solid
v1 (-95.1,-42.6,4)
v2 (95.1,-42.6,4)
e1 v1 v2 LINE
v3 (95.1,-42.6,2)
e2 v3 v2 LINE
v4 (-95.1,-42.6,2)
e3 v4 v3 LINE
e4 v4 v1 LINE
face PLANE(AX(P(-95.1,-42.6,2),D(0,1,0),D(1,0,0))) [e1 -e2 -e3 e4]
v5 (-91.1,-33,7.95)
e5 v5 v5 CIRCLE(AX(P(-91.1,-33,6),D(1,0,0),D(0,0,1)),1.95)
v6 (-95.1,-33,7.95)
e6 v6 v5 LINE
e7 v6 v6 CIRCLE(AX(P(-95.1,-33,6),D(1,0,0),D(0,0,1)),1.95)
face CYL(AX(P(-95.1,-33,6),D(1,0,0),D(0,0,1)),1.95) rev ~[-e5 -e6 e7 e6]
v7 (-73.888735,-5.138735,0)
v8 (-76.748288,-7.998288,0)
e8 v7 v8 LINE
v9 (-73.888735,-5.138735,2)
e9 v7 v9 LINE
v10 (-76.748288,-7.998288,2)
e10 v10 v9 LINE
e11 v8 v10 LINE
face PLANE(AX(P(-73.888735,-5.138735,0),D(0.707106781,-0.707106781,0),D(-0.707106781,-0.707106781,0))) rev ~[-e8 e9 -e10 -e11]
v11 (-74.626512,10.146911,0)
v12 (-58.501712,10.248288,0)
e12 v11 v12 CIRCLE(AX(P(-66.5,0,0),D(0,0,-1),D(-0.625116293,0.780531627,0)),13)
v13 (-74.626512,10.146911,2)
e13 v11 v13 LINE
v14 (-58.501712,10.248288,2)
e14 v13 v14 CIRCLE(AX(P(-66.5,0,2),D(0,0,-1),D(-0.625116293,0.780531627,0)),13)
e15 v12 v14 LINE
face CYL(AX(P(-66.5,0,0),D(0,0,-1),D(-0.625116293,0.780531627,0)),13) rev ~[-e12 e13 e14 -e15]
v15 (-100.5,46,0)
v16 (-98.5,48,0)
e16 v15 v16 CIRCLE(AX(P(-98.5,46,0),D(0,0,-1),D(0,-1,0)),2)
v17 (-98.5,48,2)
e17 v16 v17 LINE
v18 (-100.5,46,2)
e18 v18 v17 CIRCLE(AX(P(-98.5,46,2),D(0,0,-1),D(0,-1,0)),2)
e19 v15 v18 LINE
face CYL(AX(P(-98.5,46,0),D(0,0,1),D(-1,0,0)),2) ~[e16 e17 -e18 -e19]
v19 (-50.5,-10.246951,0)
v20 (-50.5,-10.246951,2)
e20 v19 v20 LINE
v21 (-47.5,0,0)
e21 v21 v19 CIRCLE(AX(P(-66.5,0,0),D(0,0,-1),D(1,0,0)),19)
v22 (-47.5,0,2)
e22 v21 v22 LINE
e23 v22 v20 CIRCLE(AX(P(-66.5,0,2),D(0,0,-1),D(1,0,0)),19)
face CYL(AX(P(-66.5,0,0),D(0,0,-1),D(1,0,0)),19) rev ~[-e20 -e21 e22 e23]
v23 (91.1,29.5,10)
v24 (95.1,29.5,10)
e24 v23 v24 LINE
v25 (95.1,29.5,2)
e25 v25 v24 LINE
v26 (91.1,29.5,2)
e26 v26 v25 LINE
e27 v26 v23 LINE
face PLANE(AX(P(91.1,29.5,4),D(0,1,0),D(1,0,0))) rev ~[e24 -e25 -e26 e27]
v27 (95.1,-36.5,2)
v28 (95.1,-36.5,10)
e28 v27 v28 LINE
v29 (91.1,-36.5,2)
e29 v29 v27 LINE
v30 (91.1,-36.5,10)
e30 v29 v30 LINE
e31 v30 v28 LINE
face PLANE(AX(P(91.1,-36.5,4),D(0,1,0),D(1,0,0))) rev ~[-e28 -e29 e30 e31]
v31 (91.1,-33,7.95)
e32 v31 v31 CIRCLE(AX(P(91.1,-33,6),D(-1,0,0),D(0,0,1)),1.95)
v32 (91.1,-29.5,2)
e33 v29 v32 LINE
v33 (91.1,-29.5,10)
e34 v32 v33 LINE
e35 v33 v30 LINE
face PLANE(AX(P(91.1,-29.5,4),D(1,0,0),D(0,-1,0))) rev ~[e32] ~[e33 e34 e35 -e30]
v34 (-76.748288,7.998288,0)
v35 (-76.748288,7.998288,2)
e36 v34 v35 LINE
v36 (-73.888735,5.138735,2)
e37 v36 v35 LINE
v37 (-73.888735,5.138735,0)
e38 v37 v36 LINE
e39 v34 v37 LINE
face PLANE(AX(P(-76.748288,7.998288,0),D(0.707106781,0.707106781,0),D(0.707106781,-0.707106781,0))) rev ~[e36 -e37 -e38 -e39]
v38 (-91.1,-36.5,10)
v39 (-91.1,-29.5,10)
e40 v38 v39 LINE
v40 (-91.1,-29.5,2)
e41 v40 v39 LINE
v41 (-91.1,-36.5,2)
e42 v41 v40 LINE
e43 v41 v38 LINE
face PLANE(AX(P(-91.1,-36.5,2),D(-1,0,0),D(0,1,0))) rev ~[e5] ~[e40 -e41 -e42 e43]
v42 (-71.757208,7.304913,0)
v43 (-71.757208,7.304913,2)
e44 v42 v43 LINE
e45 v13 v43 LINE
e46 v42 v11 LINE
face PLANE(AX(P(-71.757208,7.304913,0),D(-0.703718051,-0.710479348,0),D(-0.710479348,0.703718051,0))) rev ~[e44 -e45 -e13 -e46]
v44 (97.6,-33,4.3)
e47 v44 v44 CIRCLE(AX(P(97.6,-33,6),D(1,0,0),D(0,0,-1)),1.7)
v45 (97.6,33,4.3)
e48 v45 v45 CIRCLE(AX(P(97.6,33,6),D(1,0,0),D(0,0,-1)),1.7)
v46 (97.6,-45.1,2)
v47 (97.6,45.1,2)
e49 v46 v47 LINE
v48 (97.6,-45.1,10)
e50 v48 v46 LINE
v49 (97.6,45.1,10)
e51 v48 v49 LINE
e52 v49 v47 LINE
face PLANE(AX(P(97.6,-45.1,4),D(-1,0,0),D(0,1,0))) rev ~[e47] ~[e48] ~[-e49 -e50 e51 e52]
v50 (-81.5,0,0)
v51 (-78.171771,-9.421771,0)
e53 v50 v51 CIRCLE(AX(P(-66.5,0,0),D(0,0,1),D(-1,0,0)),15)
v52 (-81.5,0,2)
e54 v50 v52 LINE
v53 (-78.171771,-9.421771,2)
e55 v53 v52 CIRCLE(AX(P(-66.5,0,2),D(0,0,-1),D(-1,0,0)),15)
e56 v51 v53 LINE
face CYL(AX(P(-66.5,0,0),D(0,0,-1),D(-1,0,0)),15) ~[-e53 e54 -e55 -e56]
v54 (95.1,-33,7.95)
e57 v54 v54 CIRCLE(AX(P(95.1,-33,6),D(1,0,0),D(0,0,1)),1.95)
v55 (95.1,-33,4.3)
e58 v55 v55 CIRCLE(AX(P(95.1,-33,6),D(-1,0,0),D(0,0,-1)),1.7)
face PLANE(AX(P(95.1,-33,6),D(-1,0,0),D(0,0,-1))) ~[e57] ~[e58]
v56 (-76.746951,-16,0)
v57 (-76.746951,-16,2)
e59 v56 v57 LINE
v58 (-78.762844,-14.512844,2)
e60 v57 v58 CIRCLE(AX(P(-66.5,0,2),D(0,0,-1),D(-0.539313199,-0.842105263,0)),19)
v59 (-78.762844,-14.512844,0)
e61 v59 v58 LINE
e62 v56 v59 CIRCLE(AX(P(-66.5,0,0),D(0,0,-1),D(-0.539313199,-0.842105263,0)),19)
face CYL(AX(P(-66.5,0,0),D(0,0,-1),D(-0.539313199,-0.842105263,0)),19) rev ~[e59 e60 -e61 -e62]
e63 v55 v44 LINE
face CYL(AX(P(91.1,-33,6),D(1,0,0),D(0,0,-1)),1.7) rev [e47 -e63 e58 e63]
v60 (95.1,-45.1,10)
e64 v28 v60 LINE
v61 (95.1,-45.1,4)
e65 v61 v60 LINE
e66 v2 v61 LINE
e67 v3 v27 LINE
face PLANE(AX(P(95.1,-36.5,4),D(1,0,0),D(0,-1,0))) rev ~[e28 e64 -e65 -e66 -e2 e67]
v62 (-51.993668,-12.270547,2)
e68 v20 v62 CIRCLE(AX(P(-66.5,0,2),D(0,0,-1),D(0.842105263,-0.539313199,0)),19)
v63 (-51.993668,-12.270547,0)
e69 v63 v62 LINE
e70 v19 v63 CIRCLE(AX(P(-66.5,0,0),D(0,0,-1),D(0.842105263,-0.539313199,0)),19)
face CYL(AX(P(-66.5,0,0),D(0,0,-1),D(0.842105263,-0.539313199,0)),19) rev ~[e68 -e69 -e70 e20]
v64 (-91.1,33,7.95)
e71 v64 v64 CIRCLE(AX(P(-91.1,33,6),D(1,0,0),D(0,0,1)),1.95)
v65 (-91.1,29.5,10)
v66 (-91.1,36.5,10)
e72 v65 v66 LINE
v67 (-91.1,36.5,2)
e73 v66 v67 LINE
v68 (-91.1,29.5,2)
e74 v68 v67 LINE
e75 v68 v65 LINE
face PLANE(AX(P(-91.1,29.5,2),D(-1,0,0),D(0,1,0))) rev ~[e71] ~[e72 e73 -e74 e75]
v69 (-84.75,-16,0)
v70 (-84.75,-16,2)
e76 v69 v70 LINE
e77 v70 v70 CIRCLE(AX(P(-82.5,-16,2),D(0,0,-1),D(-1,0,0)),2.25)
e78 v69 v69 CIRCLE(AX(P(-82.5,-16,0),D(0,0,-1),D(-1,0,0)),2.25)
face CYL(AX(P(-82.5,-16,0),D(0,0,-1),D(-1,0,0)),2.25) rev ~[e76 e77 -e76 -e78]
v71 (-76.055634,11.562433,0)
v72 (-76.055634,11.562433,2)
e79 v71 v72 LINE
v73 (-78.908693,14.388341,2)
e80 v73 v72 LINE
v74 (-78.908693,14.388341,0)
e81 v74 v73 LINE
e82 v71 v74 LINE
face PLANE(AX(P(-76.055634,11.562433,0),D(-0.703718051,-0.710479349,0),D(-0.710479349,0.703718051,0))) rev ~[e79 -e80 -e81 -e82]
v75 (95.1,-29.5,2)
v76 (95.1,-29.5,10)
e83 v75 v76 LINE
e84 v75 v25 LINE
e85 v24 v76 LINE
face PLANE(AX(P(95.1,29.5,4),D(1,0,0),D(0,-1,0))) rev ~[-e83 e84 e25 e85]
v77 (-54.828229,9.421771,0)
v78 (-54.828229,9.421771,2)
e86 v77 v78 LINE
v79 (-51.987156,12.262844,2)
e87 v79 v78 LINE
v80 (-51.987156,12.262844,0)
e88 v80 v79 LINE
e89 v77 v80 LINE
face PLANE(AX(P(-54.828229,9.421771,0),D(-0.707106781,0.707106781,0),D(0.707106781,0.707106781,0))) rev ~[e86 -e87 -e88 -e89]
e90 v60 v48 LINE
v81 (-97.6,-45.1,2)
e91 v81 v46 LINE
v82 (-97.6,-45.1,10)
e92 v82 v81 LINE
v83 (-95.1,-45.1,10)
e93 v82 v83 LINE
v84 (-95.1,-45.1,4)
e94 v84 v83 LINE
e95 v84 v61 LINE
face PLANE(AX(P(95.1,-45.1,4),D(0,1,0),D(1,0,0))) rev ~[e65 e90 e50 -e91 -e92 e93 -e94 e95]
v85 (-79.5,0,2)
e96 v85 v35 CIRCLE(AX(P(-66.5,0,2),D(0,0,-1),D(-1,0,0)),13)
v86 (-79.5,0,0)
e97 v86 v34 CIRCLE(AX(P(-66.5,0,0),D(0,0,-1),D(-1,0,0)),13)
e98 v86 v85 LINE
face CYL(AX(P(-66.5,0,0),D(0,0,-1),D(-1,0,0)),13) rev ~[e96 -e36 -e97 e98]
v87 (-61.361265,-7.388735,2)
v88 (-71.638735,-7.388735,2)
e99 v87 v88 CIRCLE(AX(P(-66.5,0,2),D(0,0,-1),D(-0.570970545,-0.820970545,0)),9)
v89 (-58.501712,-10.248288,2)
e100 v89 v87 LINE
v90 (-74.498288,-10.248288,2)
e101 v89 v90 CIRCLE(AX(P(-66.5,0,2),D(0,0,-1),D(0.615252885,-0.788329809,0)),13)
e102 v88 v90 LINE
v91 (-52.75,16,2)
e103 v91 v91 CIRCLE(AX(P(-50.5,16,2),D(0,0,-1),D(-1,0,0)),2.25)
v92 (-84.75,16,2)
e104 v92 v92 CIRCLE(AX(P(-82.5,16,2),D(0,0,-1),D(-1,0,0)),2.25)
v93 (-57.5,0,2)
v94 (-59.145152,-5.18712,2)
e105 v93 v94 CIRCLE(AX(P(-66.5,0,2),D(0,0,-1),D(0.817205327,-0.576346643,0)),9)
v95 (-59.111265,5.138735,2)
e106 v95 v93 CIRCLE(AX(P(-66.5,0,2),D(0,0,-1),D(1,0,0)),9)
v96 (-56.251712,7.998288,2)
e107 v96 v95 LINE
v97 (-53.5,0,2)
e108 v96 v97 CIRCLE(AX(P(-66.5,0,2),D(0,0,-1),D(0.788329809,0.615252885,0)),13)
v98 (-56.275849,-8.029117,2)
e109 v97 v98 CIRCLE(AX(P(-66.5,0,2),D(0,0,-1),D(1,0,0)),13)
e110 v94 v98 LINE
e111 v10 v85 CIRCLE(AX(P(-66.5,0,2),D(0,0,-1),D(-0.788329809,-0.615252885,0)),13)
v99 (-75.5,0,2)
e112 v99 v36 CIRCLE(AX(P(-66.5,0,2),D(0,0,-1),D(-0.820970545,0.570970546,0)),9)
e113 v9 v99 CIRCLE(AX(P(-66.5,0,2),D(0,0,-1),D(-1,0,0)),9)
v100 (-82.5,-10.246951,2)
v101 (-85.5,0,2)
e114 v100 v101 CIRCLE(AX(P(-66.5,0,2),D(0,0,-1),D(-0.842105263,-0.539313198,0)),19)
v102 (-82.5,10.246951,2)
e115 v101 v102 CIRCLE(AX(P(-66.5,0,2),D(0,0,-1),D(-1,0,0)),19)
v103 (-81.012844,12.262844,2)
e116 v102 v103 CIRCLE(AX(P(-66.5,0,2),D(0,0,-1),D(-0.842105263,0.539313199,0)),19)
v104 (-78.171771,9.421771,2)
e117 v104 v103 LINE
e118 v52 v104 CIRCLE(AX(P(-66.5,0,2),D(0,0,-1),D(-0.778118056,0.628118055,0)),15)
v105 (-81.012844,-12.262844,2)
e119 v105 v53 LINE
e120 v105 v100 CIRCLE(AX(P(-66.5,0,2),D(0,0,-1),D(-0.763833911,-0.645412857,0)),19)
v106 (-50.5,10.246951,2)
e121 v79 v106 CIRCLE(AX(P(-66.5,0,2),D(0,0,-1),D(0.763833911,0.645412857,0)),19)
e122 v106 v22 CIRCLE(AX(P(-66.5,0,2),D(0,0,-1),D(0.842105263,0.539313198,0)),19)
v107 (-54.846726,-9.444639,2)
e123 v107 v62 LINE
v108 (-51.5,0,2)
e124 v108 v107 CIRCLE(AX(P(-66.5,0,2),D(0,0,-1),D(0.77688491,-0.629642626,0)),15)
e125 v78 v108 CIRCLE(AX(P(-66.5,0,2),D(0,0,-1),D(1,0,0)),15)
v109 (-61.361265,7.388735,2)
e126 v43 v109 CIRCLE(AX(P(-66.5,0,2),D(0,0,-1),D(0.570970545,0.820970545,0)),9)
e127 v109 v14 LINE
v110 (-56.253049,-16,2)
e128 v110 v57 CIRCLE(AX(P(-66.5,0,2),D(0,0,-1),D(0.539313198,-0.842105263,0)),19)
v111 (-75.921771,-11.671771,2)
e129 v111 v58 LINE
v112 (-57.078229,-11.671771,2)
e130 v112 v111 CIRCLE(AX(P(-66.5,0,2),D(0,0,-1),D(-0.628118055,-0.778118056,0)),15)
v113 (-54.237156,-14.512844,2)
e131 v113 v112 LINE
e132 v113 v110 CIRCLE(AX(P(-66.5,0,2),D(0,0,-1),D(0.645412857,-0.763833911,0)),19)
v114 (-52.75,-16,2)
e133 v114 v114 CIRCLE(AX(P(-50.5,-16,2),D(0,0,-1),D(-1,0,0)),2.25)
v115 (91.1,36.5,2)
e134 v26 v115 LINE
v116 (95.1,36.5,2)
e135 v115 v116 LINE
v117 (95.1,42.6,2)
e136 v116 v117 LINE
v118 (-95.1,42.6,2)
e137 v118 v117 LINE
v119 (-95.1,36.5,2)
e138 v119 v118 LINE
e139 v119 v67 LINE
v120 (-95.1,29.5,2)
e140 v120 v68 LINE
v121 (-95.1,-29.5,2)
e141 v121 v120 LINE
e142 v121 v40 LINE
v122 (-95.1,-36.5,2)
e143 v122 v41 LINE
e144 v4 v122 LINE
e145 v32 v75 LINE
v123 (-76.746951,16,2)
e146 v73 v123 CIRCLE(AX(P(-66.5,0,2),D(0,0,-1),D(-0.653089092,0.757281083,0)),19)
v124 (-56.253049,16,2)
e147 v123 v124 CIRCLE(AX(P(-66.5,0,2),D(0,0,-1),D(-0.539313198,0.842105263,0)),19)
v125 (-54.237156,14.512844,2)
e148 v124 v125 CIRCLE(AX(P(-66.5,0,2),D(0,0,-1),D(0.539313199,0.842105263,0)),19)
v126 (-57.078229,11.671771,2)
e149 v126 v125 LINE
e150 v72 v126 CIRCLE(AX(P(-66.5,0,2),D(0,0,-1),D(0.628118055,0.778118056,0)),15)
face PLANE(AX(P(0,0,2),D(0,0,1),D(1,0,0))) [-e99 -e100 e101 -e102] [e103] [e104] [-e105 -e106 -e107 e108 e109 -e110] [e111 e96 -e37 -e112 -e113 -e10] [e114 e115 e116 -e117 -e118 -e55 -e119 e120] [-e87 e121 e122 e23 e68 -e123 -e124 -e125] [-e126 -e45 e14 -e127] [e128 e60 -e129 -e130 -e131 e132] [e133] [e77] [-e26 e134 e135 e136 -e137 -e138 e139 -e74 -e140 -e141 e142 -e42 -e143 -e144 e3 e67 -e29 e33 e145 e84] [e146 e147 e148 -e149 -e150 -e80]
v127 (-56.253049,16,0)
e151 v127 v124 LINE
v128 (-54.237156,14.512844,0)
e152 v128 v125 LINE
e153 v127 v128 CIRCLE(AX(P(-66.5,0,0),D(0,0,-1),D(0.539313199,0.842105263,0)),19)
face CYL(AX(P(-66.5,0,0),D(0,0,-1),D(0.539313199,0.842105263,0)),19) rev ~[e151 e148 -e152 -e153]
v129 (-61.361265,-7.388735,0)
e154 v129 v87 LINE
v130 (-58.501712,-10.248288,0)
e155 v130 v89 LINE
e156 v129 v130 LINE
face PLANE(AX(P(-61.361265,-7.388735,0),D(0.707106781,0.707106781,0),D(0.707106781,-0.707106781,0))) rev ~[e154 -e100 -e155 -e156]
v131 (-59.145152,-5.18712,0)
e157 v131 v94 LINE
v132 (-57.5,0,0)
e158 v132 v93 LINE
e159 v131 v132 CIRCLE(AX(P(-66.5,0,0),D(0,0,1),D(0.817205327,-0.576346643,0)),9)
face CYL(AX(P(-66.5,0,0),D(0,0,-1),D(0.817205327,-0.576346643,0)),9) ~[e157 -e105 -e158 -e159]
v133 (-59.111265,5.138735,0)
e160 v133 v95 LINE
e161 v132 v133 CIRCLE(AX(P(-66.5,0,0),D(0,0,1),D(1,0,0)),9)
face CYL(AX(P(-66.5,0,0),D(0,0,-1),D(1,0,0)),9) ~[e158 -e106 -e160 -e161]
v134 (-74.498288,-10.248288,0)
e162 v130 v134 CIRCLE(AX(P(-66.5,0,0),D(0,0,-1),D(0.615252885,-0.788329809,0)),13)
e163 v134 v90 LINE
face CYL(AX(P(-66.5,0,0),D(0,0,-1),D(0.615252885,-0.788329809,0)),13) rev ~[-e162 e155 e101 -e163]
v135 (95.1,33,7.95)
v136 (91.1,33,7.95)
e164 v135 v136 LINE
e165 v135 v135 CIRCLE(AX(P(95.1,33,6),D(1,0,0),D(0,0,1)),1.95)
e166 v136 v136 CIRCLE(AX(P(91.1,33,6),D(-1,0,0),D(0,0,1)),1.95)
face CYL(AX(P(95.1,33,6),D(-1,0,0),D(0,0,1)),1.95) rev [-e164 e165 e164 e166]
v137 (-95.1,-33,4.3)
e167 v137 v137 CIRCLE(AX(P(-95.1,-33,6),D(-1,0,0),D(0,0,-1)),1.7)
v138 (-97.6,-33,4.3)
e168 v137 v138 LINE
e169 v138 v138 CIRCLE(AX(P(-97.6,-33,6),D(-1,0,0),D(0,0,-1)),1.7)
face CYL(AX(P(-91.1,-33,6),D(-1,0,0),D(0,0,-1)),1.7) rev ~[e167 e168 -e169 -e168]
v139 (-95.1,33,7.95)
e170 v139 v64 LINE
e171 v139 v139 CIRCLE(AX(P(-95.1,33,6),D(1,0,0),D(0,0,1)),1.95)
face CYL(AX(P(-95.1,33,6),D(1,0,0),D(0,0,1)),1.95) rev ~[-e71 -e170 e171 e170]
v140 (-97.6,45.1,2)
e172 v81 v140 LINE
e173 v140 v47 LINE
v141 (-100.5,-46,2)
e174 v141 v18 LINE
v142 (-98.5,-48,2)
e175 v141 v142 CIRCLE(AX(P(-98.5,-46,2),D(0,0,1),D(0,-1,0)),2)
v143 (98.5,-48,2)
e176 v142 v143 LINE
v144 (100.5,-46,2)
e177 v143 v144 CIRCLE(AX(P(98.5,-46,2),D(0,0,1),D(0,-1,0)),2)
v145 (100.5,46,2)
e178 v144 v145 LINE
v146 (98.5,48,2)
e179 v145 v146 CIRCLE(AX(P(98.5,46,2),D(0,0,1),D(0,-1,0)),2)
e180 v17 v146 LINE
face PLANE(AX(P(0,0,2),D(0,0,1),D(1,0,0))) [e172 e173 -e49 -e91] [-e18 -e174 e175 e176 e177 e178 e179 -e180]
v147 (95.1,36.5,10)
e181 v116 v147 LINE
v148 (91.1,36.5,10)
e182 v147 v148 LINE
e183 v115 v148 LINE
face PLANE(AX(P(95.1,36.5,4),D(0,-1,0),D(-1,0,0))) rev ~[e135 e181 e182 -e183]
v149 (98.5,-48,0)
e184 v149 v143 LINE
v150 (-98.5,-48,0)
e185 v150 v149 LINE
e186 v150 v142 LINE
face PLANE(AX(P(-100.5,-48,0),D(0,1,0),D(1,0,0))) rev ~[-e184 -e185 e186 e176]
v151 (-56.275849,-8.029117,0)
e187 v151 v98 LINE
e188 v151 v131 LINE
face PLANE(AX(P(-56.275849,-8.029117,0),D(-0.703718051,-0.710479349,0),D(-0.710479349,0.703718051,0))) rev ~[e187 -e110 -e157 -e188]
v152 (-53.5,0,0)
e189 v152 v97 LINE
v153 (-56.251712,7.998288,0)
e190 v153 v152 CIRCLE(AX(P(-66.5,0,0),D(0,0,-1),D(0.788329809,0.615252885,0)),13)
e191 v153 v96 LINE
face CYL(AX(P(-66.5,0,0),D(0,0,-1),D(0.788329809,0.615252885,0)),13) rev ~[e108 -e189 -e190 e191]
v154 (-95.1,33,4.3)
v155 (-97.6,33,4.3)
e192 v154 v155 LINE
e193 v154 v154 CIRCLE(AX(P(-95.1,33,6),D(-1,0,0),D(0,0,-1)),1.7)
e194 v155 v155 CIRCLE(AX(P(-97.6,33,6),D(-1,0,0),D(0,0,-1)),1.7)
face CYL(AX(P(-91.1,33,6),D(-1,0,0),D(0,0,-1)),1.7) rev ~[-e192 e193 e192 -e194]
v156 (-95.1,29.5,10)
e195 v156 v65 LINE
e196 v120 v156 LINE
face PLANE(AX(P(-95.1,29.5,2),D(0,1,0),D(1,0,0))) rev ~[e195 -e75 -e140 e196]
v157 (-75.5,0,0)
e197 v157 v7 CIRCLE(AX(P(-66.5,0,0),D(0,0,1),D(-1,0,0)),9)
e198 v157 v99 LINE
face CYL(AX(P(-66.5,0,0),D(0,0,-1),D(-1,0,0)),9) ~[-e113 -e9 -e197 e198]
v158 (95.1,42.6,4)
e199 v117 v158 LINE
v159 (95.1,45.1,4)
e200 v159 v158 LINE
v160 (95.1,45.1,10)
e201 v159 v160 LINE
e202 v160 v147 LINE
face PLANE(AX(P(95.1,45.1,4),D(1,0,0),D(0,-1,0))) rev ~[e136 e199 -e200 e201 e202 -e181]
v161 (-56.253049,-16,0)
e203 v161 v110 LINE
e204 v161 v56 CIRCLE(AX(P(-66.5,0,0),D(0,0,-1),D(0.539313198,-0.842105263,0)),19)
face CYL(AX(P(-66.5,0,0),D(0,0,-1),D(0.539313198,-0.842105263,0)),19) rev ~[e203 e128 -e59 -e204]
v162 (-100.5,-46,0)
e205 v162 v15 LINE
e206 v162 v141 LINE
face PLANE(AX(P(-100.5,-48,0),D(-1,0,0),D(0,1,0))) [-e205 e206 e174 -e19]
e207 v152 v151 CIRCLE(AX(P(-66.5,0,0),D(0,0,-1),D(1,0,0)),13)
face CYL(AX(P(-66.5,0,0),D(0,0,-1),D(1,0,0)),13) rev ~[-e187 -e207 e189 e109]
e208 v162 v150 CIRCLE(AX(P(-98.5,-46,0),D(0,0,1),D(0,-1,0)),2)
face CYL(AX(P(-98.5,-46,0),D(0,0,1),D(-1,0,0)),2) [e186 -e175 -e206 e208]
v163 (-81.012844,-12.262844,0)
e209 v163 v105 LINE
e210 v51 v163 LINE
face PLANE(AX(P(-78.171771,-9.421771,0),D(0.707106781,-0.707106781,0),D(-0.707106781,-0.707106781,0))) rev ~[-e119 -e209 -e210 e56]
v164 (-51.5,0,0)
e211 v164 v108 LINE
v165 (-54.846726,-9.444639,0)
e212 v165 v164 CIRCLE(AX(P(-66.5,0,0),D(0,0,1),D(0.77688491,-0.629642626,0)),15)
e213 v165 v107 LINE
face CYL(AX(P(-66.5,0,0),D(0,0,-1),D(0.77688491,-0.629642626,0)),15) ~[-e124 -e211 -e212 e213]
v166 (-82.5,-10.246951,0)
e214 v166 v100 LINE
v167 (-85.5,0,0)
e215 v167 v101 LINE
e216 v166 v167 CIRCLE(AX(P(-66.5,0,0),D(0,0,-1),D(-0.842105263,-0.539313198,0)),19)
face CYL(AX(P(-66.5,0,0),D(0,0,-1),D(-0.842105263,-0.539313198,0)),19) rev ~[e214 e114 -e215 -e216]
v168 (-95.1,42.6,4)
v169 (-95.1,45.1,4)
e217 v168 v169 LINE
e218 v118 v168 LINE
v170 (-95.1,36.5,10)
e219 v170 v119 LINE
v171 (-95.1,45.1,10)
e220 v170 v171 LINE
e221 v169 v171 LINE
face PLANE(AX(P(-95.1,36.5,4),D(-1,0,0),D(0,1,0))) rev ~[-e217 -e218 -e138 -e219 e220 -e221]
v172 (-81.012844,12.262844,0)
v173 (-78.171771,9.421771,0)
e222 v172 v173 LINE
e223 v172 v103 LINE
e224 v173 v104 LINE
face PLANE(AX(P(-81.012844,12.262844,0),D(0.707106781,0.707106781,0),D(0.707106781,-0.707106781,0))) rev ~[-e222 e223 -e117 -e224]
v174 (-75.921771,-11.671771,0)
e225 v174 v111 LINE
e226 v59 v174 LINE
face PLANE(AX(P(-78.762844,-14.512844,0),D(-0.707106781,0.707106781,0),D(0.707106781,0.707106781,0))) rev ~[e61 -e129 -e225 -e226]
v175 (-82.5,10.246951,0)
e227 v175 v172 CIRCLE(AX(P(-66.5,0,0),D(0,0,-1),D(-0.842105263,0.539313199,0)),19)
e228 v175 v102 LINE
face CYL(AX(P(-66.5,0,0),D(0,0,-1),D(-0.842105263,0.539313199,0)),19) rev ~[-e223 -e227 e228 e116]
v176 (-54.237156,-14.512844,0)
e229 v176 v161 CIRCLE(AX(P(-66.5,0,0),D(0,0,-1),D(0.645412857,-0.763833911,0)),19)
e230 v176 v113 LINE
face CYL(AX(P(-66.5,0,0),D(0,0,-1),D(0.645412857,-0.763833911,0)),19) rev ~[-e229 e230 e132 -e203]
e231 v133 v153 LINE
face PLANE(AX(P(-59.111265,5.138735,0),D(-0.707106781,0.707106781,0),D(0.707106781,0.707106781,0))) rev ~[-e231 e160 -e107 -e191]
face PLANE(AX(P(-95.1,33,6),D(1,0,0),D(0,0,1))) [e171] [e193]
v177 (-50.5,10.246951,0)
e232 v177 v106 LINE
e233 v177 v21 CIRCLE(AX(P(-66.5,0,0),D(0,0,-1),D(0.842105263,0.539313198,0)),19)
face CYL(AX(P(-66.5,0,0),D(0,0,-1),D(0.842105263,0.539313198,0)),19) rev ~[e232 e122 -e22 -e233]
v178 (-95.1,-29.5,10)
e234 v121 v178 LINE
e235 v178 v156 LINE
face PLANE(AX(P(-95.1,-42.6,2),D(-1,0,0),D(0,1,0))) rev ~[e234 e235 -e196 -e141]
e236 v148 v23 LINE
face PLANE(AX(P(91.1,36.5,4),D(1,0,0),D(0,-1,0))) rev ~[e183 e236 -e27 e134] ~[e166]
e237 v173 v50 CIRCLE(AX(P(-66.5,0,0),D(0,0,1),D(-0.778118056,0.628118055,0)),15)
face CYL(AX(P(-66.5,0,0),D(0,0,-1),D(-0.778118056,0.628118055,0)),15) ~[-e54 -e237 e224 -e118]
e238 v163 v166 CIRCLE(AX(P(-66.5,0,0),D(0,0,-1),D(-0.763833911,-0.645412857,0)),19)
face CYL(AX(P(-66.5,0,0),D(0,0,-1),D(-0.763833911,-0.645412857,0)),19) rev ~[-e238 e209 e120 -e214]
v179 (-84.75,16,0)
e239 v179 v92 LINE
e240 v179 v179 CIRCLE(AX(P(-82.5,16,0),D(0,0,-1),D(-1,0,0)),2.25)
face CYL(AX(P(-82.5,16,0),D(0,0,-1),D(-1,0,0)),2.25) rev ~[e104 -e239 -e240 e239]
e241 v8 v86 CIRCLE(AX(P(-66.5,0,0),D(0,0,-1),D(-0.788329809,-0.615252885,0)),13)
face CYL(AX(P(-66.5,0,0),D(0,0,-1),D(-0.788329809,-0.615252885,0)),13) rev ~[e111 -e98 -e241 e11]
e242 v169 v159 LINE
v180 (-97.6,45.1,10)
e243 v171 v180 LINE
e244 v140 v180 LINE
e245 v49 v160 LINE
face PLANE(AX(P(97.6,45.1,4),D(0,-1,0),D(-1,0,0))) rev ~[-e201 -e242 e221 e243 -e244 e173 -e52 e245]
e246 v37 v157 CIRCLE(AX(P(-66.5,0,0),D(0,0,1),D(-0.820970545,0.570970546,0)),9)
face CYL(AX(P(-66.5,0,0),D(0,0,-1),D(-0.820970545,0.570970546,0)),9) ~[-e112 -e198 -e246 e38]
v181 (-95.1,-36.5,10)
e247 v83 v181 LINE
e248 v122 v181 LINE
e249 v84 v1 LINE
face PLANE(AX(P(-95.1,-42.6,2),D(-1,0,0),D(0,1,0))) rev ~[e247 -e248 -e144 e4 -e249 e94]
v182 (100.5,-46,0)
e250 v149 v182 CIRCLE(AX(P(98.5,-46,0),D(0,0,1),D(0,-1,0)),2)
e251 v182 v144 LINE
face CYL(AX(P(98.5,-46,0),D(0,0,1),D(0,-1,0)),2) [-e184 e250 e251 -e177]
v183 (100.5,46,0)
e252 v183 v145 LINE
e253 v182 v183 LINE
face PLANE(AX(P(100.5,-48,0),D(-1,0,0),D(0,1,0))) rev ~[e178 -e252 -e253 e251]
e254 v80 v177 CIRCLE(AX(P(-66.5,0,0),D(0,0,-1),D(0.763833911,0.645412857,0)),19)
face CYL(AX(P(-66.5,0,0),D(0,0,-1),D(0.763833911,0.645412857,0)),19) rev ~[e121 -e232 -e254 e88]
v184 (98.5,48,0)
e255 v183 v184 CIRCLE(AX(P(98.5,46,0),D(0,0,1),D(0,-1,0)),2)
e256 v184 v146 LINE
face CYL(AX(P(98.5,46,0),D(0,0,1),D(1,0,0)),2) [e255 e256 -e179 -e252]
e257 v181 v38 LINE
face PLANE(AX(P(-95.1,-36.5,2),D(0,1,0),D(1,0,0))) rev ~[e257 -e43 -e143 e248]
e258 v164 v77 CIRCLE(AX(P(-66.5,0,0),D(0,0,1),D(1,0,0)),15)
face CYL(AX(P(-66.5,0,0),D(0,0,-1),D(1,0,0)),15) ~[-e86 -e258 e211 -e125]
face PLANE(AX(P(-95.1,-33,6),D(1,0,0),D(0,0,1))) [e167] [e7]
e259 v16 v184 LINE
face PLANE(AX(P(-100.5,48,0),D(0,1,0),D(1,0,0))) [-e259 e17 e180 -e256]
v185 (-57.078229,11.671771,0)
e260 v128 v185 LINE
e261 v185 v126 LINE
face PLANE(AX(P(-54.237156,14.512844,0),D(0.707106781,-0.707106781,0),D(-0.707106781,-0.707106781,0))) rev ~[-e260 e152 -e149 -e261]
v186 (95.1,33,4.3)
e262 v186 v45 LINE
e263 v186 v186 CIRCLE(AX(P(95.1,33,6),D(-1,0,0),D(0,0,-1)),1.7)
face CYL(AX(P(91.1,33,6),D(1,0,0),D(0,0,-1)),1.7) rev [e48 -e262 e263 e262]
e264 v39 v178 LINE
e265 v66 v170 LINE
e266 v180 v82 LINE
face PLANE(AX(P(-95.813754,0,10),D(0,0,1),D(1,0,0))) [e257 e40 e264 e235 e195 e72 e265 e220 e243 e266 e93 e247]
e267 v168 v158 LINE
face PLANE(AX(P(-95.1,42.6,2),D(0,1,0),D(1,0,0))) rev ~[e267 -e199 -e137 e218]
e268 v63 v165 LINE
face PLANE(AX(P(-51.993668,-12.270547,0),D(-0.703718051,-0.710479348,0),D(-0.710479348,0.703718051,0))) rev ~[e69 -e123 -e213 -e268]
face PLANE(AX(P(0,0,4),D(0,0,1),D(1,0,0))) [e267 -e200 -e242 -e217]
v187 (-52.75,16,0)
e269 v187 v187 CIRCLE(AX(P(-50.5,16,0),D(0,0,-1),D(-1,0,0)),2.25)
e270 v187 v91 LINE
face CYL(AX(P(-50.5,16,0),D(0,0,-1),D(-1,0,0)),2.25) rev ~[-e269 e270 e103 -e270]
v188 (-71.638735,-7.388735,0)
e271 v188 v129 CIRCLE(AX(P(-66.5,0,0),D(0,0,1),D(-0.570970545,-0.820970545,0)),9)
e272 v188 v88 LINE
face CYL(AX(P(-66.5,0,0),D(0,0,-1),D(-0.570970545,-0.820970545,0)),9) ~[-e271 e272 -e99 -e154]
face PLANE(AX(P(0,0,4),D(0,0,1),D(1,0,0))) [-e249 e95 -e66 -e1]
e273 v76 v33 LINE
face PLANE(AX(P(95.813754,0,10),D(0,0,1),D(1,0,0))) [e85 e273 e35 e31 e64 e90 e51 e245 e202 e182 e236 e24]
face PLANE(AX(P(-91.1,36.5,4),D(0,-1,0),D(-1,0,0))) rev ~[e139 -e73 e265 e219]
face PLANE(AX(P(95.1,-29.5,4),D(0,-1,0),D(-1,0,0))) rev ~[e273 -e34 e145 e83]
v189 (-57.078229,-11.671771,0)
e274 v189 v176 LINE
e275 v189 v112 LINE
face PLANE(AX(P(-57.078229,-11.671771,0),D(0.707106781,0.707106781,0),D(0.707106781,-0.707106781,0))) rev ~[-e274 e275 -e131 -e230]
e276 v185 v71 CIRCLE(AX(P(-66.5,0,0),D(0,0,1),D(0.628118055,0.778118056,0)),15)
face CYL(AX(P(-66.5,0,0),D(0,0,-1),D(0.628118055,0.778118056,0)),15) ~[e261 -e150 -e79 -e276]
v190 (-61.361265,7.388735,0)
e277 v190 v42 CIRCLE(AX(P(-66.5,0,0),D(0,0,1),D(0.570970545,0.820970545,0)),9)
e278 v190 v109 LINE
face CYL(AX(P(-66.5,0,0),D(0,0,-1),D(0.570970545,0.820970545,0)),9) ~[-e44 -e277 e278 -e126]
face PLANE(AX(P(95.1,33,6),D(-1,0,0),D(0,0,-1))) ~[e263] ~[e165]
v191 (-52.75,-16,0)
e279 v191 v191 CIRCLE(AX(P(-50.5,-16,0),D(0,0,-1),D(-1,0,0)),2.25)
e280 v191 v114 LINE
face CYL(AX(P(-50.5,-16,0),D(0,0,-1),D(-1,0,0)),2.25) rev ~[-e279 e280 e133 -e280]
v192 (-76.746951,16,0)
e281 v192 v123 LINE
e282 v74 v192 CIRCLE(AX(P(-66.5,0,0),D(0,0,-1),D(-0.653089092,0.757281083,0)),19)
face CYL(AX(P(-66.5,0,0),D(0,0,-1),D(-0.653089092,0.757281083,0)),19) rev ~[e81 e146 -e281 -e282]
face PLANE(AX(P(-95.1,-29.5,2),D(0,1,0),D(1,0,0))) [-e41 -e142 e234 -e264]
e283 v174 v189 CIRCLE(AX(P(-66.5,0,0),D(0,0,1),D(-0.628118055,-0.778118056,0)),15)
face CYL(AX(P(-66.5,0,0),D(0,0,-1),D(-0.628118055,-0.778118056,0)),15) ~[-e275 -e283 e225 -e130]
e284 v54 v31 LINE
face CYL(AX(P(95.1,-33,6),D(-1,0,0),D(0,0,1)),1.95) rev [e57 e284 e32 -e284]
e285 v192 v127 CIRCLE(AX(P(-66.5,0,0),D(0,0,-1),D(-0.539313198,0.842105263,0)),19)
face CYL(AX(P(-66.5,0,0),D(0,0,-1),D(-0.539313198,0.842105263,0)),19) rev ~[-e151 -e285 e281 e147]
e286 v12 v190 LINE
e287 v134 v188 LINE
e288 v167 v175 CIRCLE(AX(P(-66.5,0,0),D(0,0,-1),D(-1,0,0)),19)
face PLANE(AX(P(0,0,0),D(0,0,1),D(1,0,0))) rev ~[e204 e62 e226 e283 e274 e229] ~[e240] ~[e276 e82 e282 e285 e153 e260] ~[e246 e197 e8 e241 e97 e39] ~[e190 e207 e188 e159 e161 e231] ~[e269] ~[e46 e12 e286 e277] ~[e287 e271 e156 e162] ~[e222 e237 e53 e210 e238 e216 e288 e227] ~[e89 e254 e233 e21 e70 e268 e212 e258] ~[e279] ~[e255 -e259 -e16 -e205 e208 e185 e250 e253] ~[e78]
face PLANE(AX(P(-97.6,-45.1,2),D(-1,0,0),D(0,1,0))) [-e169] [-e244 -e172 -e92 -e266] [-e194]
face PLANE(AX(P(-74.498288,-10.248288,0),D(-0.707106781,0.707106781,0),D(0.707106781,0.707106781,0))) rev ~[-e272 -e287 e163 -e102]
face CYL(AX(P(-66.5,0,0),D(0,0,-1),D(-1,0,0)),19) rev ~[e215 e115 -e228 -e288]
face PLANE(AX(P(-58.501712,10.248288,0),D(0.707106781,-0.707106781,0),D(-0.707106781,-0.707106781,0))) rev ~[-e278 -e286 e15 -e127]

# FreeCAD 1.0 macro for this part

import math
import FreeCAD as App
import Part
import Sketcher
from FreeCAD import Vector


def edges_at(feature, points):
    """Names of the edges that pass closest to the given points."""
    edges = feature.Shape.Edges
    near = lambda p: min(range(len(edges)), key=lambda i: edges[i].distToShape(Part.Vertex(*p))[0])
    return sorted({f"Edge{near(p) + 1}" for p in points})


def add_polygon(sketch, points):
    """Adds a closed chain of lines whose ends are joined by coincident constraints."""
    first, n = sketch.GeometryCount, len(points)
    for a, b in zip(points, points[1:] + points[:1]):
        sketch.addGeometry(Part.LineSegment(App.Vector(*a, 0), App.Vector(*b, 0)), False)
    for i in range(n):
        sketch.addConstraint(Sketcher.Constraint("Coincident", first + i, 2, first + (i + 1) % n, 1))

doc = App.newDocument("Part")
body = doc.addObject("PartDesign::Body", "Body")

sketch1 = body.newObject("Sketcher::SketchObject", "Sketch")
sketch1.AttachmentSupport = (doc.getObject("XY_Plane"), [""])
sketch1.MapMode = "FlatFace"
add_polygon(sketch1, [(-100, 48), (-100, -48), (100, -48), (100, 48)])
sketch1.addConstraint([
    Sketcher.Constraint("Vertical", 0),
    Sketcher.Constraint("Horizontal", 1),
    Sketcher.Constraint("Vertical", 2),
    Sketcher.Constraint("Horizontal", 3),
    Sketcher.Constraint("Symmetric", 0, 2, 2, 2, -1, 1),
    Sketcher.Constraint("DistanceX", 1, 1, 1, 2, 201.0),
    Sketcher.Constraint("DistanceY", 0, 2, 0, 1, 96.0),
])
pad1 = body.newObject("PartDesign::Pad", "Pad")
pad1.Profile = sketch1
pad1.Length = 2
doc.recompute()

fillet = body.newObject("PartDesign::Fillet", "Fillet")
fillet.Base = (pad1, edges_at(pad1, [
    (100.5, -48, 1),
    (-100.5, -48, 1),
    (-100.5, 48, 1),
    (100.5, 48, 1),
]))
fillet.Radius = 2

sketch2 = body.newObject("Sketcher::SketchObject", "Sketch001")
sketch2.AttachmentSupport = (doc.getObject("XY_Plane"), [""])
sketch2.MapMode = "FlatFace"
sketch2.AttachmentOffset = App.Placement(Vector(0, 0, 2), App.Rotation())
add_polygon(sketch2, [(-97.6, 45.1), (-97.6, -45.1), (97.6, -45.1), (97.6, 45.1)])
add_polygon(sketch2, [(95.1, -42.6), (-95.1, -42.6), (-95.1, -36.5), (-91.1, -36.5), (-91.1, -29.5), (-95.1, -29.5), (-95.1, 29.5), (-91.1, 29.5), (-91.1, 36.5), (-95.1, 36.5), (-95.1, 42.6), (95.1, 42.6), (95.1, 36.5), (91.1, 36.5), (91.1, 29.5), (95.1, 29.5), (95.1, -29.5), (91.1, -29.5), (91.1, -36.5), (95.1, -36.5)])
sketch2.addConstraint([
    Sketcher.Constraint("Vertical", 0),
    Sketcher.Constraint("Horizontal", 1),
    Sketcher.Constraint("Vertical", 2),
    Sketcher.Constraint("Horizontal", 3),
    Sketcher.Constraint("Horizontal", 4),
    Sketcher.Constraint("Vertical", 5),
    Sketcher.Constraint("Horizontal", 6),
    Sketcher.Constraint("Vertical", 7),
    Sketcher.Constraint("Horizontal", 8),
    Sketcher.Constraint("Vertical", 9),
    Sketcher.Constraint("Horizontal", 10),
    Sketcher.Constraint("Vertical", 11),
    Sketcher.Constraint("Horizontal", 12),
    Sketcher.Constraint("Vertical", 13),
    Sketcher.Constraint("Horizontal", 14),
    Sketcher.Constraint("Vertical", 15),
    Sketcher.Constraint("Horizontal", 16),
    Sketcher.Constraint("Vertical", 17),
    Sketcher.Constraint("Horizontal", 18),
    Sketcher.Constraint("Vertical", 19),
    Sketcher.Constraint("Horizontal", 20),
    Sketcher.Constraint("Vertical", 21),
    Sketcher.Constraint("Horizontal", 22),
    Sketcher.Constraint("Vertical", 23),
    Sketcher.Constraint("Symmetric", 0, 2, 2, 2, -1, 1),
    Sketcher.Constraint("Symmetric", 4, 2, 14, 2, -1, 1),
    Sketcher.Constraint("Symmetric", 6, 2, 16, 2, -1, 1),
    Sketcher.Constraint("Symmetric", 8, 2, 18, 2, -1, 1),
    Sketcher.Constraint("Symmetric", 10, 2, 20, 2, -1, 1),
    Sketcher.Constraint("Symmetric", 12, 2, 22, 2, -1, 1),
    Sketcher.Constraint("Symmetric", 12, 2, 15, 2, -2),
    Sketcher.Constraint("Symmetric", 10, 2, 17, 2, -2),
    Sketcher.Constraint("Vertical", 5, 2, 8, 2),
    Sketcher.Constraint("DistanceX", 6, 1, 6, 2, 4.0),
    Sketcher.Constraint("DistanceY", 7, 1, 7, 2, 7.0),
    Sketcher.Constraint("DistanceY", 9, 1, 9, 2, 59.0),
    Sketcher.Constraint("DistanceX", 1, 1, 1, 2, 195.2),
    Sketcher.Constraint("DistanceX", 4, 2, 4, 1, 190.2),
    Sketcher.Constraint("DistanceY", 0, 2, 0, 1, 90.2),
    Sketcher.Constraint("DistanceY", 5, 1, 5, 2, 6.1),
])
pad2 = body.newObject("PartDesign::Pad", "Pad001")
pad2.Profile = sketch2
pad2.Length = 2

sketch3 = body.newObject("Sketcher::SketchObject", "Sketch002")
sketch3.AttachmentSupport = (doc.getObject("XY_Plane"), [""])
sketch3.MapMode = "FlatFace"
sketch3.AttachmentOffset = App.Placement(Vector(0, 0, 4), App.Rotation())
add_polygon(sketch3, [(95.1, 45.1), (95.1, 36.5), (91.1, 36.5), (91.1, 29.5), (95.1, 29.5), (95.1, -29.5), (91.1, -29.5), (91.1, -36.5), (95.1, -36.5), (95.1, -45.1), (97.6, -45.1), (97.6, 45.1)])
add_polygon(sketch3, [(-95.1, -45.1), (-95.1, -36.5), (-91.1, -36.5), (-91.1, -29.5), (-95.1, -29.5), (-95.1, 29.5), (-91.1, 29.5), (-91.1, 36.5), (-95.1, 36.5), (-95.1, 45.1), (-97.6, 45.1), (-97.6, -45.1)])
sketch3.addConstraint([
    Sketcher.Constraint("Vertical", 0),
    Sketcher.Constraint("Horizontal", 1),
    Sketcher.Constraint("Vertical", 2),
    Sketcher.Constraint("Horizontal", 3),
    Sketcher.Constraint("Vertical", 4),
    Sketcher.Constraint("Horizontal", 5),
    Sketcher.Constraint("Vertical", 6),
    Sketcher.Constraint("Horizontal", 7),
    Sketcher.Constraint("Vertical", 8),
    Sketcher.Constraint("Horizontal", 9),
    Sketcher.Constraint("Vertical", 10),
    Sketcher.Constraint("Horizontal", 11),
    Sketcher.Constraint("Vertical", 12),
    Sketcher.Constraint("Horizontal", 13),
    Sketcher.Constraint("Vertical", 14),
    Sketcher.Constraint("Horizontal", 15),
    Sketcher.Constraint("Vertical", 16),
    Sketcher.Constraint("Horizontal", 17),
    Sketcher.Constraint("Vertical", 18),
    Sketcher.Constraint("Horizontal", 19),
    Sketcher.Constraint("Vertical", 20),
    Sketcher.Constraint("Horizontal", 21),
    Sketcher.Constraint("Vertical", 22),
    Sketcher.Constraint("Horizontal", 23),
    Sketcher.Constraint("Symmetric", 0, 2, 12, 2, -1, 1),
    Sketcher.Constraint("Symmetric", 2, 2, 14, 2, -1, 1),
    Sketcher.Constraint("Symmetric", 4, 2, 16, 2, -1, 1),
    Sketcher.Constraint("Symmetric", 6, 2, 18, 2, -1, 1),
    Sketcher.Constraint("Symmetric", 8, 2, 20, 2, -1, 1),
    Sketcher.Constraint("Symmetric", 10, 2, 22, 2, -1, 1),
    Sketcher.Constraint("Symmetric", 7, 2, 12, 2, -2),
    Sketcher.Constraint("Symmetric", 5, 2, 14, 2, -2),
    Sketcher.Constraint("Horizontal", 11, 2, 20, 2),
    Sketcher.Constraint("Vertical", 0, 2, 3, 2),
    Sketcher.Constraint("DistanceX", 1, 2, 1, 1, 4.0),
    Sketcher.Constraint("DistanceY", 2, 2, 2, 1, 7.0),
    Sketcher.Constraint("DistanceY", 4, 2, 4, 1, 59.0),
    Sketcher.Constraint("DistanceX", 9, 1, 9, 2, 2.5),
    Sketcher.Constraint("DistanceY", 0, 2, 0, 1, 8.6),
    Sketcher.Constraint("DistanceX", -1, 1, 0, 2, 95.1),
])
pad3 = body.newObject("PartDesign::Pad", "Pad002")
pad3.Profile = sketch3
pad3.Length = 6

sketch4 = body.newObject("Sketcher::SketchObject", "Sketch003")
sketch4.AttachmentSupport = (doc.getObject("YZ_Plane"), [""])
sketch4.MapMode = "FlatFace"
sketch4.AttachmentOffset = App.Placement(Vector(0, 0, -91.1), App.Rotation())
sketch4.addGeometry([
    Part.Circle(Vector(33, 6, 0), Vector(0, 0, 1), 1.7),
    Part.Circle(Vector(-33, 6, 0), Vector(0, 0, 1), 1.7),
], False)
sketch4.addConstraint([
    Sketcher.Constraint("Equal", 0, 1),
    Sketcher.Constraint("Symmetric", 0, 3, 1, 3, -2),
    Sketcher.Constraint("Diameter", 0, 3.4),
    Sketcher.Constraint("DistanceX", -1, 1, 0, 3, 33.0),
    Sketcher.Constraint("DistanceY", -1, 1, 0, 3, 6.0),
])
doc.recompute()
hole = body.newObject("PartDesign::Hole", "Hole")
hole.Profile = sketch4
hole.ThreadType = "None"
hole.Diameter = 3.4
hole.DepthType = "Dimension"
hole.Depth = 9.4
hole.DrillPoint = "Flat"
hole.HoleCutType = "Counterbore"
hole.HoleCutDiameter = 3.9
hole.HoleCutDepth = 4
doc.recompute()

mirrored = body.newObject("PartDesign::Mirrored", "Mirrored")
mirrored.Originals = [hole]
mirrored.MirrorPlane = (doc.getObject("YZ_Plane"), [""])
body.Tip = mirrored

sketch5 = body.newObject("Sketcher::SketchObject", "Sketch004")
sketch5.AttachmentSupport = (doc.getObject("XY_Plane"), [""])
sketch5.MapMode = "FlatFace"
sketch5.addGeometry([
    Part.LineSegment(Vector(-78.171771, -9.421771, 0), Vector(-81.012844, -12.262844, 0)),
    Part.ArcOfCircle(Part.Circle(Vector(-66.5, 0, 0), Vector(0, 0, 1), 19), math.radians(-147.363102), math.radians(-139.803363)),
    Part.ArcOfCircle(Part.Circle(Vector(-66.5, 0, 0), Vector(0, 0, 1), 19), math.radians(180), math.radians(212.636898)),
    Part.ArcOfCircle(Part.Circle(Vector(-66.5, 0, 0), Vector(0, 0, 1), 19), math.radians(147.363102), math.radians(180)),
    Part.ArcOfCircle(Part.Circle(Vector(-66.5, 0, 0), Vector(0, 0, 1), 19), math.radians(139.803363), math.radians(147.363102)),
    Part.LineSegment(Vector(-81.012844, 12.262844, 0), Vector(-78.171771, 9.421771, 0)),
    Part.ArcOfCircle(Part.Circle(Vector(-66.5, 0, 0), Vector(0, 0, 1), 15), math.radians(141.088588), math.radians(180)),
    Part.ArcOfCircle(Part.Circle(Vector(-66.5, 0, 0), Vector(0, 0, 1), 15), math.radians(-180), math.radians(-141.088588)),
    Part.ArcOfCircle(Part.Circle(Vector(-66.5, 0, 0), Vector(0, 0, 1), 15), math.radians(51.088588), math.radians(129.571621)),
    Part.LineSegment(Vector(-76.055634, 11.562433, 0), Vector(-78.908693, 14.388341, 0)),
    Part.ArcOfCircle(Part.Circle(Vector(-66.5, 0, 0), Vector(0, 0, 1), 19), math.radians(122.636897), math.radians(130.774913)),
    Part.ArcOfCircle(Part.Circle(Vector(-66.5, 0, 0), Vector(0, 0, 1), 19), math.radians(57.363102), math.radians(122.636898)),
    Part.ArcOfCircle(Part.Circle(Vector(-66.5, 0, 0), Vector(0, 0, 1), 19), math.radians(49.803363), math.radians(57.363102)),
    Part.LineSegment(Vector(-54.237156, 14.512844, 0), Vector(-57.078229, 11.671771, 0)),
    Part.ArcOfCircle(Part.Circle(Vector(-66.5, 0, 0), Vector(0, 0, 1), 19), math.radians(0), math.radians(32.636898)),
    Part.ArcOfCircle(Part.Circle(Vector(-66.5, 0, 0), Vector(0, 0, 1), 19), math.radians(-32.636898), math.radians(0)),
    Part.ArcOfCircle(Part.Circle(Vector(-66.5, 0, 0), Vector(0, 0, 1), 19), math.radians(-40.227053), math.radians(-32.636898)),
    Part.LineSegment(Vector(-51.993668, -12.270547, 0), Vector(-54.846726, -9.444639, 0)),
    Part.ArcOfCircle(Part.Circle(Vector(-66.5, 0, 0), Vector(0, 0, 1), 15), math.radians(-39.023761), math.radians(0)),
    Part.ArcOfCircle(Part.Circle(Vector(-66.5, 0, 0), Vector(0, 0, 1), 15), math.radians(0), math.radians(38.911412)),
    Part.LineSegment(Vector(-54.828229, 9.421771, 0), Vector(-51.987156, 12.262844, 0)),
    Part.ArcOfCircle(Part.Circle(Vector(-66.5, 0, 0), Vector(0, 0, 1), 19), math.radians(32.636898), math.radians(40.196637)),
    Part.LineSegment(Vector(-78.762844, -14.512844, 0), Vector(-75.921771, -11.671771, 0)),
    Part.ArcOfCircle(Part.Circle(Vector(-66.5, 0, 0), Vector(0, 0, 1), 15), math.radians(-128.911412), math.radians(-51.088588)),
    Part.LineSegment(Vector(-57.078229, -11.671771, 0), Vector(-54.237156, -14.512844, 0)),
    Part.ArcOfCircle(Part.Circle(Vector(-66.5, 0, 0), Vector(0, 0, 1), 19), math.radians(-57.363102), math.radians(-49.803363)),
    Part.ArcOfCircle(Part.Circle(Vector(-66.5, 0, 0), Vector(0, 0, 1), 19), math.radians(-122.636898), math.radians(-57.363102)),
    Part.ArcOfCircle(Part.Circle(Vector(-66.5, 0, 0), Vector(0, 0, 1), 19), math.radians(-130.196637), math.radians(-122.636898)),
    Part.ArcOfCircle(Part.Circle(Vector(-66.5, 0, 0), Vector(0, 0, 1), 13), math.radians(180), math.radians(217.970298)),
    Part.ArcOfCircle(Part.Circle(Vector(-66.5, 0, 0), Vector(0, 0, 1), 13), math.radians(142.029702), math.radians(180)),
    Part.LineSegment(Vector(-76.748288, 7.998288, 0), Vector(-73.888735, 5.138735, 0)),
    Part.ArcOfCircle(Part.Circle(Vector(-66.5, 0, 0), Vector(0, 0, 1), 9), math.radians(145.182067), math.radians(180)),
    Part.ArcOfCircle(Part.Circle(Vector(-66.5, 0, 0), Vector(0, 0, 1), 9), math.radians(180), math.radians(214.817933)),
    Part.LineSegment(Vector(-73.888735, -5.138735, 0), Vector(-76.748288, -7.998288, 0)),
    Part.ArcOfCircle(Part.Circle(Vector(-66.5, 0, 0), Vector(0, 0, 1), 13), math.radians(-127.970298), math.radians(-52.029702)),
    Part.LineSegment(Vector(-74.498288, -10.248288, 0), Vector(-71.638735, -7.388735, 0)),
    Part.ArcOfCircle(Part.Circle(Vector(-66.5, 0, 0), Vector(0, 0, 1), 9), math.radians(-124.817933), math.radians(-55.182067)),
    Part.LineSegment(Vector(-61.361265, -7.388735, 0), Vector(-58.501712, -10.248288, 0)),
    Part.ArcOfCircle(Part.Circle(Vector(-66.5, 0, 0), Vector(0, 0, 1), 13), math.radians(-38.142864), math.radians(0)),
    Part.LineSegment(Vector(-56.275849, -8.029117, 0), Vector(-59.145152, -5.18712, 0)),
    Part.ArcOfCircle(Part.Circle(Vector(-66.5, 0, 0), Vector(0, 0, 1), 9), math.radians(-35.193993), math.radians(0)),
    Part.ArcOfCircle(Part.Circle(Vector(-66.5, 0, 0), Vector(0, 0, 1), 9), math.radians(0), math.radians(34.817933)),
    Part.LineSegment(Vector(-59.111265, 5.138735, 0), Vector(-56.251712, 7.998288, 0)),
    Part.ArcOfCircle(Part.Circle(Vector(-66.5, 0, 0), Vector(0, 0, 1), 13), math.radians(0), math.radians(37.970298)),
    Part.LineSegment(Vector(-71.757208, 7.304913, 0), Vector(-74.626512, 10.146911, 0)),
    Part.ArcOfCircle(Part.Circle(Vector(-66.5, 0, 0), Vector(0, 0, 1), 13), math.radians(52.029702), math.radians(128.690724)),
    Part.LineSegment(Vector(-58.501712, 10.248288, 0), Vector(-61.361265, 7.388735, 0)),
    Part.ArcOfCircle(Part.Circle(Vector(-66.5, 0, 0), Vector(0, 0, 1), 9), math.radians(55.182067), math.radians(125.741853)),
    Part.Circle(Vector(-50.5, -16, 0), Vector(0, 0, 1), 2.25),
    Part.Circle(Vector(-82.5, -16, 0), Vector(0, 0, 1), 2.25),
    Part.Circle(Vector(-82.5, 16, 0), Vector(0, 0, 1), 2.25),
    Part.Circle(Vector(-50.5, 16, 0), Vector(0, 0, 1), 2.25),
], False)
sketch5.addConstraint([
    Sketcher.Constraint("Coincident", 0, 2, 1, 2),
    Sketcher.Constraint("Coincident", 1, 1, 2, 2),
    Sketcher.Constraint("Coincident", 2, 1, 3, 2),
    Sketcher.Constraint("Coincident", 3, 1, 4, 2),
    Sketcher.Constraint("Coincident", 4, 1, 5, 1),
    Sketcher.Constraint("Coincident", 5, 2, 6, 1),
    Sketcher.Constraint("Coincident", 6, 2, 7, 1),
    Sketcher.Constraint("Coincident", 7, 2, 0, 1),
    Sketcher.Constraint("Coincident", 8, 2, 9, 1),
    Sketcher.Constraint("Coincident", 9, 2, 10, 2),
    Sketcher.Constraint("Coincident", 10, 1, 11, 2),
    Sketcher.Constraint("Coincident", 11, 1, 12, 2),
    Sketcher.Constraint("Coincident", 12, 1, 13, 1),
    Sketcher.Constraint("Coincident", 13, 2, 8, 1),
    Sketcher.Constraint("Coincident", 14, 1, 15, 2),
    Sketcher.Constraint("Coincident", 15, 1, 16, 2),
    Sketcher.Constraint("Coincident", 16, 1, 17, 1),
    Sketcher.Constraint("Coincident", 17, 2, 18, 1),
    Sketcher.Constraint("Coincident", 18, 2, 19, 1),
    Sketcher.Constraint("Coincident", 19, 2, 20, 1),
    Sketcher.Constraint("Coincident", 20, 2, 21, 2),
    Sketcher.Constraint("Coincident", 21, 1, 14, 2),
    Sketcher.Constraint("Coincident", 22, 2, 23, 1),
    Sketcher.Constraint("Coincident", 23, 2, 24, 1),
    Sketcher.Constraint("Coincident", 24, 2, 25, 2),
    Sketcher.Constraint("Coincident", 25, 1, 26, 2),
    Sketcher.Constraint("Coincident", 26, 1, 27, 2),
    Sketcher.Constraint("Coincident", 27, 1, 22, 1),
    Sketcher.Constraint("Coincident", 28, 1, 29, 2),
    Sketcher.Constraint("Coincident", 29, 1, 30, 1),
    Sketcher.Constraint("Coincident", 30, 2, 31, 1),
    Sketcher.Constraint("Coincident", 31, 2, 32, 1),
    Sketcher.Constraint("Coincident", 32, 2, 33, 1),
    Sketcher.Constraint("Coincident", 33, 2, 28, 2),
    Sketcher.Constraint("Coincident", 34, 1, 35, 1),
    Sketcher.Constraint("Coincident", 35, 2, 36, 1),
    Sketcher.Constraint("Coincident", 36, 2, 37, 1),
    Sketcher.Constraint("Coincident", 37, 2, 34, 2),
    Sketcher.Constraint("Coincident", 38, 1, 39, 1),
    Sketcher.Constraint("Coincident", 39, 2, 40, 1),
    Sketcher.Constraint("Coincident", 40, 2, 41, 1),
    Sketcher.Constraint("Coincident", 41, 2, 42, 1),
    Sketcher.Constraint("Coincident", 42, 2, 43, 2),
    Sketcher.Constraint("Coincident", 43, 1, 38, 2),
    Sketcher.Constraint("Coincident", 44, 2, 45, 2),
    Sketcher.Constraint("Coincident", 45, 1, 46, 1),
    Sketcher.Constraint("Coincident", 46, 2, 47, 1),
    Sketcher.Constraint("Coincident", 47, 2, 44, 1),
    Sketcher.Constraint("Coincident", 2, 3, 1, 3),
    Sketcher.Constraint("Coincident", 3, 3, 1, 3),
    Sketcher.Constraint("Coincident", 4, 3, 1, 3),
    Sketcher.Constraint("Coincident", 6, 3, 1, 3),
    Sketcher.Constraint("Coincident", 7, 3, 1, 3),
    Sketcher.Constraint("Coincident", 8, 3, 1, 3),
    Sketcher.Constraint("Coincident", 10, 3, 1, 3),
    Sketcher.Constraint("Coincident", 11, 3, 1, 3),
    Sketcher.Constraint("Coincident", 12, 3, 1, 3),
    Sketcher.Constraint("Coincident", 14, 3, 1, 3),
    Sketcher.Constraint("Coincident", 15, 3, 1, 3),
    Sketcher.Constraint("Coincident", 16, 3, 1, 3),
    Sketcher.Constraint("Coincident", 18, 3, 1, 3),
    Sketcher.Constraint("Coincident", 19, 3, 1, 3),
    Sketcher.Constraint("Coincident", 21, 3, 1, 3),
    Sketcher.Constraint("Coincident", 23, 3, 1, 3),
    Sketcher.Constraint("Coincident", 25, 3, 1, 3),
    Sketcher.Constraint("Coincident", 26, 3, 1, 3),
    Sketcher.Constraint("Coincident", 27, 3, 1, 3),
    Sketcher.Constraint("Coincident", 28, 3, 1, 3),
    Sketcher.Constraint("Coincident", 29, 3, 1, 3),
    Sketcher.Constraint("Coincident", 31, 3, 1, 3),
    Sketcher.Constraint("Coincident", 32, 3, 1, 3),
    Sketcher.Constraint("Coincident", 34, 3, 1, 3),
    Sketcher.Constraint("Coincident", 36, 3, 1, 3),
    Sketcher.Constraint("Coincident", 38, 3, 1, 3),
    Sketcher.Constraint("Coincident", 40, 3, 1, 3),
    Sketcher.Constraint("Coincident", 41, 3, 1, 3),
    Sketcher.Constraint("Coincident", 43, 3, 1, 3),
    Sketcher.Constraint("Coincident", 45, 3, 1, 3),
    Sketcher.Constraint("Coincident", 47, 3, 1, 3),
    Sketcher.Constraint("PointOnObject", 1, 3, -1),
    Sketcher.Constraint("PointOnObject", 2, 1, -1),
    Sketcher.Constraint("PointOnObject", 6, 2, -1),
    Sketcher.Constraint("PointOnObject", 14, 1, -1),
    Sketcher.Constraint("PointOnObject", 18, 2, -1),
    Sketcher.Constraint("PointOnObject", 28, 1, -1),
    Sketcher.Constraint("PointOnObject", 31, 2, -1),
    Sketcher.Constraint("PointOnObject", 40, 2, -1),
    Sketcher.Constraint("PointOnObject", 43, 1, -1),
    Sketcher.Constraint("Radius", 1, 19.0),
    Sketcher.Constraint("Radius", 6, 15.0),
    Sketcher.Constraint("Radius", 8, 15.0),
    Sketcher.Constraint("Radius", 10, 19.0),
    Sketcher.Constraint("Radius", 14, 19.0),
    Sketcher.Constraint("Radius", 18, 15.0),
    Sketcher.Constraint("Radius", 23, 15.0),
    Sketcher.Constraint("Radius", 25, 19.0),
    Sketcher.Constraint("Radius", 28, 13.0),
    Sketcher.Constraint("Radius", 31, 9.0),
    Sketcher.Constraint("Radius", 34, 13.0),
    Sketcher.Constraint("Radius", 36, 9.0),
    Sketcher.Constraint("Radius", 38, 13.0),
    Sketcher.Constraint("Radius", 40, 9.0),
    Sketcher.Constraint("Radius", 45, 13.0),
    Sketcher.Constraint("Radius", 47, 9.0),
    Sketcher.Constraint("Diameter", 48, 4.5),
    Sketcher.Constraint("Diameter", 49, 4.5),
    Sketcher.Constraint("Diameter", 50, 4.5),
    Sketcher.Constraint("Diameter", 51, 4.5),
    Sketcher.Constraint("DistanceY", 48, 3, -1, 1, 16.0),
    Sketcher.Constraint("DistanceY", 49, 3, -1, 1, 16.0),
    Sketcher.Constraint("DistanceY", -1, 1, 50, 3, 16.0),
    Sketcher.Constraint("DistanceY", -1, 1, 51, 3, 16.0),
    Sketcher.Constraint("DistanceY", -1, 1, 10, 1, 16.0),
    Sketcher.Constraint("DistanceY", -1, 1, 11, 1, 16.0),
    Sketcher.Constraint("DistanceY", 25, 1, -1, 1, 16.0),
    Sketcher.Constraint("DistanceY", 26, 1, -1, 1, 16.0),
    Sketcher.Constraint("DistanceX", 1, 3, -1, 1, 66.5),
    Sketcher.Constraint("DistanceX", 48, 3, -1, 1, 50.5),
    Sketcher.Constraint("DistanceX", 49, 3, -1, 1, 82.5),
    Sketcher.Constraint("DistanceX", 50, 3, -1, 1, 82.5),
    Sketcher.Constraint("DistanceX", 51, 3, -1, 1, 50.5),
    Sketcher.Constraint("DistanceX", 1, 1, -1, 1, 82.5),
    Sketcher.Constraint("DistanceX", 3, 1, -1, 1, 82.5),
    Sketcher.Constraint("DistanceX", 15, 1, -1, 1, 50.5),
    Sketcher.Constraint("DistanceX", 21, 1, -1, 1, 50.5),
    Sketcher.Constraint("Distance", 9, 4.015681),
    Sketcher.Constraint("Distance", 17, 4.015681),
    Sketcher.Constraint("Distance", 30, 4.044018),
    Sketcher.Constraint("Distance", 33, 4.044018),
    Sketcher.Constraint("Distance", 35, 4.044018),
    Sketcher.Constraint("Distance", 37, 4.044018),
    Sketcher.Constraint("Distance", 42, 4.044018),
    Sketcher.Constraint("Distance", 46, 4.044018),
    Sketcher.Constraint("DistanceX", 5, 2, -1, 1, 78.171771),
    Sketcher.Constraint("DistanceX", 7, 2, -1, 1, 78.171771),
    Sketcher.Constraint("DistanceY", -1, 1, 9, 2, 14.388341),
    Sketcher.Constraint("DistanceX", 13, 2, -1, 1, 57.078229),
    Sketcher.Constraint("DistanceY", 17, 2, -1, 1, 9.444639),
    Sketcher.Constraint("DistanceX", 19, 2, -1, 1, 54.828229),
    Sketcher.Constraint("DistanceX", 22, 2, -1, 1, 75.921771),
    Sketcher.Constraint("DistanceX", 23, 2, -1, 1, 57.078229),
    Sketcher.Constraint("DistanceX", 38, 1, -1, 1, 56.275849),
    Sketcher.Constraint("DistanceY", 39, 2, -1, 1, 5.18712),
    Sketcher.Constraint("DistanceX", 44, 2, -1, 1, 74.626512),
    Sketcher.Constraint("DistanceX", 47, 2, -1, 1, 71.757208),
    Sketcher.Constraint("Distance", 0, 4.017885),
    Sketcher.Constraint("Distance", 5, 4.017885),
    Sketcher.Constraint("Distance", 13, 4.017885),
    Sketcher.Constraint("Distance", 20, 4.017885),
    Sketcher.Constraint("Distance", 22, 4.017885),
    Sketcher.Constraint("Distance", 24, 4.017885),
    Sketcher.Constraint("DistanceX", 29, 1, -1, 1, 76.748288),
    Sketcher.Constraint("DistanceX", 32, 2, -1, 1, 73.888735),
    Sketcher.Constraint("DistanceX", 34, 1, -1, 1, 74.498288),
    Sketcher.Constraint("DistanceX", 36, 2, -1, 1, 61.361265),
    Sketcher.Constraint("DistanceX", 41, 2, -1, 1, 59.111265),
    Sketcher.Constraint("DistanceX", 45, 1, -1, 1, 58.501712),
])
pocket1 = body.newObject("PartDesign::Pocket", "Pocket")
pocket1.Profile = sketch5
pocket1.Length = 6
pocket1.Reversed = True

doc.recompute()
